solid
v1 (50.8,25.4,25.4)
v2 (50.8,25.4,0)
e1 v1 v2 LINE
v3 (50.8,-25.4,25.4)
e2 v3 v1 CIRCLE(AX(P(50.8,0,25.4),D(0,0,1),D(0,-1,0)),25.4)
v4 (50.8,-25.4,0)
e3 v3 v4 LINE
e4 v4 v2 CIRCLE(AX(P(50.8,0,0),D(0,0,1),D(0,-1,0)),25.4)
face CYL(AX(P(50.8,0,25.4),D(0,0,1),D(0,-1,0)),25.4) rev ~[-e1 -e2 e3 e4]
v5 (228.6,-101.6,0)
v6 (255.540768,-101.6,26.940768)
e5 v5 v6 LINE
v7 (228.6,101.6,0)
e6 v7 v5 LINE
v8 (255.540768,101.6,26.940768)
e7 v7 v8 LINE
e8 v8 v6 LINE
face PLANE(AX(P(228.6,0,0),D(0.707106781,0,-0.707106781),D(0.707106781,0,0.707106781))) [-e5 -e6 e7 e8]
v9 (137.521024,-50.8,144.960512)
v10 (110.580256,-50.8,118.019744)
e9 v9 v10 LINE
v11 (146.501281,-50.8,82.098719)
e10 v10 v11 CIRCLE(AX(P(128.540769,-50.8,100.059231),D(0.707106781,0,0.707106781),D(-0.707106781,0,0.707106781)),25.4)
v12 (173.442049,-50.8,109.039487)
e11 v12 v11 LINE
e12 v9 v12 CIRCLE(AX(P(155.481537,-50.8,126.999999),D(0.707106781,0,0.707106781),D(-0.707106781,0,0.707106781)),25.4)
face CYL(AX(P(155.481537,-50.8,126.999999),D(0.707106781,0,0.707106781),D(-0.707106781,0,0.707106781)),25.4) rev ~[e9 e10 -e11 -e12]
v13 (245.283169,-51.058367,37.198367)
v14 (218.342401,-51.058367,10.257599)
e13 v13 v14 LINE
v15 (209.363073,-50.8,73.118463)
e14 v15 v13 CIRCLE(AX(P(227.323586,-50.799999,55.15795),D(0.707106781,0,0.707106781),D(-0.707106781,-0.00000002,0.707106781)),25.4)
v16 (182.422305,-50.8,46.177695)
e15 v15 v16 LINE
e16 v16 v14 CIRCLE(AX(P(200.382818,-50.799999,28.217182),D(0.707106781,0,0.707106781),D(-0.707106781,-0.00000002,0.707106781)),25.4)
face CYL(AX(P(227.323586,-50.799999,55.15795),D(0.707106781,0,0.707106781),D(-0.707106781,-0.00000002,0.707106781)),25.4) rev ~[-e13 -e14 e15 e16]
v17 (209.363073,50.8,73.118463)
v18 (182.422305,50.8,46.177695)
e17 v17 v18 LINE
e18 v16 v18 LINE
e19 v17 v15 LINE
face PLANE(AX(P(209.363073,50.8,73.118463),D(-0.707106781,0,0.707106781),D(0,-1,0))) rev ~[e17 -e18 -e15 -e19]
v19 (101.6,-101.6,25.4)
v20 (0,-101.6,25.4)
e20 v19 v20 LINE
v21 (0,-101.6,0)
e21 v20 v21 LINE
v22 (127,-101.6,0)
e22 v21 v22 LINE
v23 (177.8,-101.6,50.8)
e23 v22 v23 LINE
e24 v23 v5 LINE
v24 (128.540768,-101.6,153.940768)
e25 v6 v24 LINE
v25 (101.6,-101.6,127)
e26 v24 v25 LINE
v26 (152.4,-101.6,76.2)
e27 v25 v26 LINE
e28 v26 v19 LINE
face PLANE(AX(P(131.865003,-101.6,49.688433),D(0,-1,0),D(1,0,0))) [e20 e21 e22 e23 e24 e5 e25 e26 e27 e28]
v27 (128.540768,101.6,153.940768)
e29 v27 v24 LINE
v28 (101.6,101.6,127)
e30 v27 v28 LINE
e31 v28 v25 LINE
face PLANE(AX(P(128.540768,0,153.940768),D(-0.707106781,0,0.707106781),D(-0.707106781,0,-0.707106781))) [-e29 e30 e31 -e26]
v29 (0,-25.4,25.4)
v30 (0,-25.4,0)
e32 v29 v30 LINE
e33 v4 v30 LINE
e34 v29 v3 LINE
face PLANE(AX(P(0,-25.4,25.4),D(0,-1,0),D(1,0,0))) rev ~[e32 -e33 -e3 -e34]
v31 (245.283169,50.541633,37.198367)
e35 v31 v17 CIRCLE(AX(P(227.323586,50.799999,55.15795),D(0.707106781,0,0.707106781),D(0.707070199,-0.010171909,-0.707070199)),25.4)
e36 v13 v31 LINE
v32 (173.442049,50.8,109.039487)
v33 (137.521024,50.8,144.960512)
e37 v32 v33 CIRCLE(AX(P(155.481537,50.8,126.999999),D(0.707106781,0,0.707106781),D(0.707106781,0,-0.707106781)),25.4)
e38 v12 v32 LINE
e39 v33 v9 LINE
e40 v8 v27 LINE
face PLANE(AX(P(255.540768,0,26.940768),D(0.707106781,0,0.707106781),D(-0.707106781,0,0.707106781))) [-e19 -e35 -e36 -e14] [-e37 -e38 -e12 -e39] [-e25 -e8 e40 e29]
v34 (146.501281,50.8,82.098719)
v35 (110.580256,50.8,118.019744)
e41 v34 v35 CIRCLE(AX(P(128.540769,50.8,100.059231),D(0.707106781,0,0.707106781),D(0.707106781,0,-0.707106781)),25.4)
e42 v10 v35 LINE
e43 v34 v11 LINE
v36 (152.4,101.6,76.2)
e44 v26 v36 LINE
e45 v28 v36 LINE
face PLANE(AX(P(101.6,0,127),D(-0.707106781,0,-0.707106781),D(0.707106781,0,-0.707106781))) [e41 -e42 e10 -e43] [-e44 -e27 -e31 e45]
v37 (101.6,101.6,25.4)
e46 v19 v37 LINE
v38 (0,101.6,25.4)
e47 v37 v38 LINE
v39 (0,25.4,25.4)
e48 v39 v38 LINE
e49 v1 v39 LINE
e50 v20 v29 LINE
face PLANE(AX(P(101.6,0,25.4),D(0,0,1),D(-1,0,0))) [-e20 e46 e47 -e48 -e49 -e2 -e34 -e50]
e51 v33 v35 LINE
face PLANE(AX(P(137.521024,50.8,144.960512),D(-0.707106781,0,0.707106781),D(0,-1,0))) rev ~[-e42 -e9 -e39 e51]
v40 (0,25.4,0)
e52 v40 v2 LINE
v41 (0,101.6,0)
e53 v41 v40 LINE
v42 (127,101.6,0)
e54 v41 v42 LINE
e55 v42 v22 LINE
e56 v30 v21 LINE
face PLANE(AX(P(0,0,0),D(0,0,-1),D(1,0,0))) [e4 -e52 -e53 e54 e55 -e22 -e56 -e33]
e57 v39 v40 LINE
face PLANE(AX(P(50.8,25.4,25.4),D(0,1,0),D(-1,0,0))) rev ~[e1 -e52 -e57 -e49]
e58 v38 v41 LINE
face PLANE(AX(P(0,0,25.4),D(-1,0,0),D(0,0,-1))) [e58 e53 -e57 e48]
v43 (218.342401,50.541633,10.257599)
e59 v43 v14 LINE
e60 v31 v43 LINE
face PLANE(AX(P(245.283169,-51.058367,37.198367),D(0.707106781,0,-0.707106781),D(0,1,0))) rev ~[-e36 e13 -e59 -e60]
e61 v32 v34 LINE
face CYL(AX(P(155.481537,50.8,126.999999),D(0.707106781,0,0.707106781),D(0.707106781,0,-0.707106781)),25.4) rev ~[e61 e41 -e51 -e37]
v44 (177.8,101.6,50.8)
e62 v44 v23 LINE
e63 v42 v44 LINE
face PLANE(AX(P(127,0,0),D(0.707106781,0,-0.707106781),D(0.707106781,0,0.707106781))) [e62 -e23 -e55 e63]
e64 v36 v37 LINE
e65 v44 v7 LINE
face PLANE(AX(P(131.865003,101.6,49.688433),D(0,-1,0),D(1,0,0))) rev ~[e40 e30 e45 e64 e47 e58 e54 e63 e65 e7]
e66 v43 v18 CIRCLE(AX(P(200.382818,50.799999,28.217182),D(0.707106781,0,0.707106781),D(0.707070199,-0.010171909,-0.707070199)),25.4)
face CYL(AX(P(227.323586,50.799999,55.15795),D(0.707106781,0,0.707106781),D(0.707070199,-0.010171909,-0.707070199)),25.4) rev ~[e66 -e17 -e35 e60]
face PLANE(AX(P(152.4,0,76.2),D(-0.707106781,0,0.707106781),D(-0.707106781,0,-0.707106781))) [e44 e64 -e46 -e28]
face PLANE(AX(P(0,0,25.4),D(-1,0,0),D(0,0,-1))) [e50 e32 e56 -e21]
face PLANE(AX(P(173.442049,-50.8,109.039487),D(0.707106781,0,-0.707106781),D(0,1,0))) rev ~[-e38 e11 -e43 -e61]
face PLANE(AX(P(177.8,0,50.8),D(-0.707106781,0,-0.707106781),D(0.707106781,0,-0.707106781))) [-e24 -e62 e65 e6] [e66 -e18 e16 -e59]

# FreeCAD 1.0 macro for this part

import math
import FreeCAD as App
import Part
import Sketcher
Q = App.Units.Quantity

doc = App.newDocument("Part")
body = doc.addObject("PartDesign::Body", "Body")

# Sketch on XZ plane
sketch1 = doc.addObject("Sketcher::SketchObject", "Sketch")
body.addObject(sketch1)
sketch1.AttachmentSupport = (doc.XZ_Plane, [""])
sketch1.MapMode = "FlatFace"
sketch1.addGeometry([
    Part.LineSegment(App.Vector(0, 25.4, 0), App.Vector(0, 0, 0)),  # 0
    Part.LineSegment(App.Vector(0, 0, 0), App.Vector(127, 0, 0)),  # 1
    Part.LineSegment(App.Vector(127, 0, 0), App.Vector(177.8, 50.8, 0)),  # 2
    Part.LineSegment(App.Vector(177.8, 50.8, 0), App.Vector(228.6, 0, 0)),  # 3
    Part.LineSegment(App.Vector(228.6, 0, 0), App.Vector(255.540768, 26.940768, 0)),  # 4
    Part.LineSegment(App.Vector(255.540768, 26.940768, 0), App.Vector(128.540768, 153.940768, 0)),  # 5
    Part.LineSegment(App.Vector(128.540768, 153.940768, 0), App.Vector(101.6, 127, 0)),  # 6
    Part.LineSegment(App.Vector(101.6, 127, 0), App.Vector(152.4, 76.2, 0)),  # 7
    Part.LineSegment(App.Vector(152.4, 76.2, 0), App.Vector(101.6, 25.4, 0)),  # 8
    Part.LineSegment(App.Vector(101.6, 25.4, 0), App.Vector(0, 25.4, 0)),  # 9
], False)
sketch1.addConstraint([
    Sketcher.Constraint("Coincident", 0, 2, 1, 1),
    Sketcher.Constraint("Coincident", 1, 2, 2, 1),
    Sketcher.Constraint("Coincident", 2, 2, 3, 1),
    Sketcher.Constraint("Coincident", 3, 2, 4, 1),
    Sketcher.Constraint("Coincident", 4, 2, 5, 1),
    Sketcher.Constraint("Coincident", 5, 2, 6, 1),
    Sketcher.Constraint("Coincident", 6, 2, 7, 1),
    Sketcher.Constraint("Coincident", 7, 2, 8, 1),
    Sketcher.Constraint("Coincident", 8, 2, 9, 1),
    Sketcher.Constraint("Coincident", 9, 2, 0, 1),
    Sketcher.Constraint("Vertical", 0),
    Sketcher.Constraint("Horizontal", 1),
    Sketcher.Constraint("Horizontal", 9),
    Sketcher.Constraint("Coincident", 0, 2, -1, 1),
    Sketcher.Constraint("PointOnObject", 3, 2, -1),
    Sketcher.Constraint("Perpendicular", 2, 3),
    Sketcher.Constraint("Perpendicular", 3, 4),
    Sketcher.Constraint("Perpendicular", 4, 5),
    Sketcher.Constraint("Perpendicular", 5, 6),
    Sketcher.Constraint("Perpendicular", 6, 7),
    Sketcher.Constraint("Perpendicular", 7, 8),
    Sketcher.Constraint("Vertical", 6, 2, 8, 2),
    Sketcher.Constraint("Equal", 2, 3),
    Sketcher.Constraint("Equal", 4, 6),
    Sketcher.Constraint("Equal", 3, 7),
    Sketcher.Constraint("DistanceX", 1, 1, 1, 2, Q("5 in")),
    Sketcher.Constraint("DistanceX", 9, 2, 9, 1, Q("4 in")),
    Sketcher.Constraint("DistanceX", -1, 1, 2, 2, Q("7 in")),
    Sketcher.Constraint("Distance", 4, Q("1.5 in")),
])
pad1 = doc.addObject("PartDesign::Pad", "Pad")
body.addObject(pad1)
pad1.Profile = sketch1
pad1.Length = Q("8 in")
pad1.Midplane = True

# Sketch on an angled plane
sketch2 = doc.addObject("Sketcher::SketchObject", "Sketch001")
body.addObject(sketch2)
sketch2.Placement = App.Placement(App.Vector(141.240768, 0, 141.240768), App.Rotation(App.Vector(0.707106781, 0, -0.707106781), App.Vector(0, 0.999999999, 0), App.Vector(0.707106781, 0, 0.707106781), "ZXY"))
sketch2.addGeometry([
    Part.LineSegment(App.Vector(-5.260512, 50.8, 0), App.Vector(-5.260512, -50.8, 0)),  # 0
    Part.ArcOfCircle(Part.Circle(App.Vector(20.139488, -50.8, 0), App.Vector(0, 0, 1), 25.4), math.radians(180), math.radians(360)),  # 1
    Part.LineSegment(App.Vector(45.539488, -50.8, 0), App.Vector(45.539488, 50.8, 0)),  # 2
    Part.ArcOfCircle(Part.Circle(App.Vector(20.139488, 50.8, 0), App.Vector(0, 0, 1), 25.4), math.radians(0), math.radians(180)),  # 3
    Part.LineSegment(App.Vector(96.339488, 50.8, 0), App.Vector(96.339488, -50.8, 0)),  # 4
    Part.ArcOfCircle(Part.Circle(App.Vector(121.739488, -50.799999, 0), App.Vector(0, 0, 1), 25.4), math.radians(-179.999999), math.radians(-0.58282)),  # 5
    Part.LineSegment(App.Vector(147.138174, -51.058367, 0), App.Vector(147.138174, 50.541633, 0)),  # 6
    Part.ArcOfCircle(Part.Circle(App.Vector(121.739488, 50.799999, 0), App.Vector(0, 0, 1), 25.4), math.radians(-0.582817), math.radians(179.999999)),  # 7
], False)
sketch2.addConstraint([
    Sketcher.Constraint("Tangent", 0, 2, 1, 1),
    Sketcher.Constraint("Tangent", 1, 2, 2, 1),
    Sketcher.Constraint("Tangent", 2, 2, 3, 1),
    Sketcher.Constraint("Tangent", 3, 2, 0, 1),
    Sketcher.Constraint("Tangent", 4, 2, 5, 1),
    Sketcher.Constraint("Coincident", 5, 2, 6, 1),
    Sketcher.Constraint("Coincident", 6, 2, 7, 1),
    Sketcher.Constraint("Tangent", 7, 2, 4, 1),
    Sketcher.Constraint("Vertical", 0),
    Sketcher.Constraint("Vertical", 2),
    Sketcher.Constraint("Vertical", 4),
    Sketcher.Constraint("Vertical", 6),
    Sketcher.Constraint("Equal", 3, 5),
    Sketcher.Constraint("Equal", 5, 7),
    Sketcher.Constraint("Horizontal", 1, 3, 5, 3),
    Sketcher.Constraint("Horizontal", 3, 3, 7, 3),
    Sketcher.Constraint("Radius", 1, Q("1 in")),
    Sketcher.Constraint("DistanceY", 0, 2, 0, 1, Q("4 in")),
    Sketcher.Constraint("DistanceY", 1, 3, -1, 1, Q("2 in")),
    Sketcher.Constraint("DistanceX", 1, 3, 5, 3, Q("4 in")),
    Sketcher.Constraint("DistanceX", 0, 2, -1, 1, 5.260512),
    Sketcher.Constraint("DistanceX", -1, 1, 5, 2, 147.138174),
])
pocket1 = doc.addObject("PartDesign::Pocket", "Pocket")
body.addObject(pocket1)
pocket1.Profile = sketch2
pocket1.Length = Q("3.08 in")

# Sketch on XY plane
sketch3 = doc.addObject("Sketcher::SketchObject", "Sketch002")
body.addObject(sketch3)
sketch3.AttachmentSupport = (doc.XY_Plane, [""])
sketch3.MapMode = "FlatFace"
sketch3.AttachmentOffset = App.Placement(App.Vector(0, 0, 1 * 25.4), App.Rotation())
sketch3.addGeometry([
    Part.LineSegment(App.Vector(50.8, 25.4, 0), App.Vector(0, 25.4, 0)),
    Part.LineSegment(App.Vector(0, 25.4, 0), App.Vector(0, -25.4, 0)),
    Part.LineSegment(App.Vector(0, -25.4, 0), App.Vector(50.8, -25.4, 0)),
    Part.ArcOfCircle(Part.Circle(App.Vector(50.8, 0, 0), App.Vector(0, 0, 1), 25.4), math.radians(-90), math.radians(90)),
], False)
sketch3.addConstraint([
    Sketcher.Constraint("Coincident", 0, 2, 1, 1),
    Sketcher.Constraint("Coincident", 1, 2, 2, 1),
    Sketcher.Constraint("Tangent", 2, 2, 3, 1),
    Sketcher.Constraint("Tangent", 3, 2, 0, 1),
    Sketcher.Constraint("Horizontal", 0),
    Sketcher.Constraint("Vertical", 1),
    Sketcher.Constraint("Horizontal", 2),
    Sketcher.Constraint("Symmetric", 0, 2, 1, 2, -1, 1),
    Sketcher.Constraint("Equal", 2, 1),
    Sketcher.Constraint("Radius", 3, Q("1 in")),
])
pocket2 = doc.addObject("PartDesign::Pocket", "Pocket001")
body.addObject(pocket2)
pocket2.Profile = sketch3
pocket2.Length = Q("1.28 in")

doc.recompute()
